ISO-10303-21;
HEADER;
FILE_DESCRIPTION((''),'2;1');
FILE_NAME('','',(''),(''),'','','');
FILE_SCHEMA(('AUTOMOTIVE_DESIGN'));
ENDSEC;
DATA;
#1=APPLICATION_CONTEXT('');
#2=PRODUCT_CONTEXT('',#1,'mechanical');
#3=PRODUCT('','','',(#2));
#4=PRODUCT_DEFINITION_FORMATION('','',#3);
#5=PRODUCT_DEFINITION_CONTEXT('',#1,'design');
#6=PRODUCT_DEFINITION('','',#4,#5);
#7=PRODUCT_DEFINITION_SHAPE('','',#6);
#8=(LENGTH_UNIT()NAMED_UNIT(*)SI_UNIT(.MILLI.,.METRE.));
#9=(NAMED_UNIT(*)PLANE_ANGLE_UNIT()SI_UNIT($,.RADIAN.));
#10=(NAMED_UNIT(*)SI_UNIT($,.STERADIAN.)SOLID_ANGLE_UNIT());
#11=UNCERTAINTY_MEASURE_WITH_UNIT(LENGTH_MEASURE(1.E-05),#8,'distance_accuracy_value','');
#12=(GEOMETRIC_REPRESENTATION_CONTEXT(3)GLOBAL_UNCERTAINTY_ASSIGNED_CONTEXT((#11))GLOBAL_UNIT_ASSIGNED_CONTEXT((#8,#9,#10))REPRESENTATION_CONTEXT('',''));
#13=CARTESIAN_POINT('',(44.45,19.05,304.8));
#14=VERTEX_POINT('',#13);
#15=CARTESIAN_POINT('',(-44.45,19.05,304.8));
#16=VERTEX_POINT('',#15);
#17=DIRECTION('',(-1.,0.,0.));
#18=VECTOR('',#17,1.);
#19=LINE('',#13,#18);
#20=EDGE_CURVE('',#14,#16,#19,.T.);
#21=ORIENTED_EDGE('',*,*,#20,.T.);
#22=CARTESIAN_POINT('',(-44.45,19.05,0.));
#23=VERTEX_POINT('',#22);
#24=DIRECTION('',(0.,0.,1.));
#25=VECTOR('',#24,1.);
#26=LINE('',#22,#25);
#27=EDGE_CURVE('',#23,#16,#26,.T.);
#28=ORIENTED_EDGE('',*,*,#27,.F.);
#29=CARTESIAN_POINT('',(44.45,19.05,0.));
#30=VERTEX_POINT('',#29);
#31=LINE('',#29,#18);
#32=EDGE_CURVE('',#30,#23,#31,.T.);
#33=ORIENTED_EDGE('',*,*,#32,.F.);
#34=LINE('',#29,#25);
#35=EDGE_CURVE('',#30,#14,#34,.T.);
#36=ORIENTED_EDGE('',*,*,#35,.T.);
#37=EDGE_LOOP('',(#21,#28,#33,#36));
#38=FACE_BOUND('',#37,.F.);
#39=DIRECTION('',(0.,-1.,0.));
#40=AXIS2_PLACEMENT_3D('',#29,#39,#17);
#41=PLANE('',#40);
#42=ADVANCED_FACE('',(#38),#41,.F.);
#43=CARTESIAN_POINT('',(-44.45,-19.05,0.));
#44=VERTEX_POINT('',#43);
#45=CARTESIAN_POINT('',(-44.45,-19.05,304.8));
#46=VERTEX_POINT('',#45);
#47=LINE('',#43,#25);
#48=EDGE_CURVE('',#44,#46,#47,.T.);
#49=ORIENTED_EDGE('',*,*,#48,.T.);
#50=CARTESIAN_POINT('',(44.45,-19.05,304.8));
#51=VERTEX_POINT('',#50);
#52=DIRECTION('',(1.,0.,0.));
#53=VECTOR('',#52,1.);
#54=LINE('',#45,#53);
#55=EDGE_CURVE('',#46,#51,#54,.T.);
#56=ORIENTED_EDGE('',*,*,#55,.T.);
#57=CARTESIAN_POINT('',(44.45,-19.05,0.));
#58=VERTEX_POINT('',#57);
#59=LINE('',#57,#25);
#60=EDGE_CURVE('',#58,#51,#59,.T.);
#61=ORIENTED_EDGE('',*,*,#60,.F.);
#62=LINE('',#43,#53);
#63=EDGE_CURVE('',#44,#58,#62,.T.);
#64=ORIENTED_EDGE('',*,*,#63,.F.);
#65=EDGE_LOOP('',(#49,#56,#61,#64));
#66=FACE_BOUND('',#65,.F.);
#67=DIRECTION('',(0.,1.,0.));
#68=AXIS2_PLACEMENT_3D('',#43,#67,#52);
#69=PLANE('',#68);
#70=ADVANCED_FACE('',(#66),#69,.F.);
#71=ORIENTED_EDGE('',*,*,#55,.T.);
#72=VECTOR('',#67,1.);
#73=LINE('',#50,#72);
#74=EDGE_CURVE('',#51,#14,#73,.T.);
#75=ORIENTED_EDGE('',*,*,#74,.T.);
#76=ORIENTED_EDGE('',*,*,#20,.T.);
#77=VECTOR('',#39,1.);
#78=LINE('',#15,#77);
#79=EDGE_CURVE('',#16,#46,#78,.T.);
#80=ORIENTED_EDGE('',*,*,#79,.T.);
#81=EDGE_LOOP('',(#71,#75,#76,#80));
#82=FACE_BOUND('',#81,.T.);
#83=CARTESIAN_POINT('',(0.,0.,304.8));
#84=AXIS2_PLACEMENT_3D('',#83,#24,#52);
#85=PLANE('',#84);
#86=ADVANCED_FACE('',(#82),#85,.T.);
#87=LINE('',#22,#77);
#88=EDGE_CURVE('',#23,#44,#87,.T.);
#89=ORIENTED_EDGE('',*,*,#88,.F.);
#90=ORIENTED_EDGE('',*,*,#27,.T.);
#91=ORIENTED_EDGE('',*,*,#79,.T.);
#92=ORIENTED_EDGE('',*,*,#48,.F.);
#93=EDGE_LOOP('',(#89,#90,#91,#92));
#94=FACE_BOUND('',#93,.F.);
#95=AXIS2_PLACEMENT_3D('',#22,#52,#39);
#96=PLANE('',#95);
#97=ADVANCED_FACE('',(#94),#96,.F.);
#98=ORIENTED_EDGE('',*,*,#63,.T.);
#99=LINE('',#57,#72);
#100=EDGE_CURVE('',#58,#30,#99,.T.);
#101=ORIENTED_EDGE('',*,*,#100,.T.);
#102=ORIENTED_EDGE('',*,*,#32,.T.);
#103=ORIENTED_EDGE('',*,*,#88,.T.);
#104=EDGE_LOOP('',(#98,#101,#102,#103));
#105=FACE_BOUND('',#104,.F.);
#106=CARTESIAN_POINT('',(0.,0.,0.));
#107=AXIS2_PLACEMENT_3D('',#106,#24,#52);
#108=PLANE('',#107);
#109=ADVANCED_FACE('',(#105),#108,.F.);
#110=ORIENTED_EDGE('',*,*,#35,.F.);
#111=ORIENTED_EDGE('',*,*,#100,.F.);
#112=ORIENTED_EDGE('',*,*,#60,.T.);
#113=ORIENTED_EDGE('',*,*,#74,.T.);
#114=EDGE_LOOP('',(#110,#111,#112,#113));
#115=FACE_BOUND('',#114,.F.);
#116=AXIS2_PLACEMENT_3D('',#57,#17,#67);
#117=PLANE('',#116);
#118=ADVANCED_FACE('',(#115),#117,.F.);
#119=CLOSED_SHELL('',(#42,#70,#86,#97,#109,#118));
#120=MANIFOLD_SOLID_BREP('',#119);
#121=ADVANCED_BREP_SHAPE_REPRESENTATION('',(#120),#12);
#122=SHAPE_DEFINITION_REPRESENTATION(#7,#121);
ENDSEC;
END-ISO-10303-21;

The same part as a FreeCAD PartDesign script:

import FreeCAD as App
import Part
import Sketcher

V = App.Vector
Q = App.Units.Quantity


def add_polygon(sketch, points):
    """Adds a closed chain of lines whose ends are joined by coincident constraints."""
    first, n = sketch.GeometryCount, len(points)
    for a, b in zip(points, points[1:] + points[:1]):
        sketch.addGeometry(Part.LineSegment(App.Vector(*a, 0), App.Vector(*b, 0)), False)
    for i in range(n):
        sketch.addConstraint(Sketcher.Constraint("Coincident", first + i, 2, first + (i + 1) % n, 1))

doc = App.newDocument("Part")
body = doc.addObject("PartDesign::Body", "Body")

# Sketch on XY plane
sketch1 = body.newObject("Sketcher::SketchObject", "Sketch")
sketch1.AttachmentSupport = (doc.getObject("XY_Plane"), [""])
sketch1.MapMode = "FlatFace"
add_polygon(sketch1, [(-44.45, 19.05), (-44.45, -19.05), (44.45, -19.05), (44.45, 19.05)])  # lines 0-3
sketch1.addConstraint(Sketcher.Constraint("Vertical", 0))
sketch1.addConstraint(Sketcher.Constraint("Horizontal", 1))
sketch1.addConstraint(Sketcher.Constraint("Vertical", 2))
sketch1.addConstraint(Sketcher.Constraint("Horizontal", 3))
sketch1.addConstraint(Sketcher.Constraint("Symmetric", 0, 2, 2, 2, -1, 1))
sketch1.addConstraint(Sketcher.Constraint("DistanceX", 1, 1, 1, 2, Q("3.5 in")))
sketch1.addConstraint(Sketcher.Constraint("DistanceY", 0, 2, 0, 1, Q("1.5 in")))
pad1 = body.newObject("PartDesign::Pad", "Pad")
pad1.Profile = sketch1
pad1.Length = Q("12 in")

doc.recompute()
